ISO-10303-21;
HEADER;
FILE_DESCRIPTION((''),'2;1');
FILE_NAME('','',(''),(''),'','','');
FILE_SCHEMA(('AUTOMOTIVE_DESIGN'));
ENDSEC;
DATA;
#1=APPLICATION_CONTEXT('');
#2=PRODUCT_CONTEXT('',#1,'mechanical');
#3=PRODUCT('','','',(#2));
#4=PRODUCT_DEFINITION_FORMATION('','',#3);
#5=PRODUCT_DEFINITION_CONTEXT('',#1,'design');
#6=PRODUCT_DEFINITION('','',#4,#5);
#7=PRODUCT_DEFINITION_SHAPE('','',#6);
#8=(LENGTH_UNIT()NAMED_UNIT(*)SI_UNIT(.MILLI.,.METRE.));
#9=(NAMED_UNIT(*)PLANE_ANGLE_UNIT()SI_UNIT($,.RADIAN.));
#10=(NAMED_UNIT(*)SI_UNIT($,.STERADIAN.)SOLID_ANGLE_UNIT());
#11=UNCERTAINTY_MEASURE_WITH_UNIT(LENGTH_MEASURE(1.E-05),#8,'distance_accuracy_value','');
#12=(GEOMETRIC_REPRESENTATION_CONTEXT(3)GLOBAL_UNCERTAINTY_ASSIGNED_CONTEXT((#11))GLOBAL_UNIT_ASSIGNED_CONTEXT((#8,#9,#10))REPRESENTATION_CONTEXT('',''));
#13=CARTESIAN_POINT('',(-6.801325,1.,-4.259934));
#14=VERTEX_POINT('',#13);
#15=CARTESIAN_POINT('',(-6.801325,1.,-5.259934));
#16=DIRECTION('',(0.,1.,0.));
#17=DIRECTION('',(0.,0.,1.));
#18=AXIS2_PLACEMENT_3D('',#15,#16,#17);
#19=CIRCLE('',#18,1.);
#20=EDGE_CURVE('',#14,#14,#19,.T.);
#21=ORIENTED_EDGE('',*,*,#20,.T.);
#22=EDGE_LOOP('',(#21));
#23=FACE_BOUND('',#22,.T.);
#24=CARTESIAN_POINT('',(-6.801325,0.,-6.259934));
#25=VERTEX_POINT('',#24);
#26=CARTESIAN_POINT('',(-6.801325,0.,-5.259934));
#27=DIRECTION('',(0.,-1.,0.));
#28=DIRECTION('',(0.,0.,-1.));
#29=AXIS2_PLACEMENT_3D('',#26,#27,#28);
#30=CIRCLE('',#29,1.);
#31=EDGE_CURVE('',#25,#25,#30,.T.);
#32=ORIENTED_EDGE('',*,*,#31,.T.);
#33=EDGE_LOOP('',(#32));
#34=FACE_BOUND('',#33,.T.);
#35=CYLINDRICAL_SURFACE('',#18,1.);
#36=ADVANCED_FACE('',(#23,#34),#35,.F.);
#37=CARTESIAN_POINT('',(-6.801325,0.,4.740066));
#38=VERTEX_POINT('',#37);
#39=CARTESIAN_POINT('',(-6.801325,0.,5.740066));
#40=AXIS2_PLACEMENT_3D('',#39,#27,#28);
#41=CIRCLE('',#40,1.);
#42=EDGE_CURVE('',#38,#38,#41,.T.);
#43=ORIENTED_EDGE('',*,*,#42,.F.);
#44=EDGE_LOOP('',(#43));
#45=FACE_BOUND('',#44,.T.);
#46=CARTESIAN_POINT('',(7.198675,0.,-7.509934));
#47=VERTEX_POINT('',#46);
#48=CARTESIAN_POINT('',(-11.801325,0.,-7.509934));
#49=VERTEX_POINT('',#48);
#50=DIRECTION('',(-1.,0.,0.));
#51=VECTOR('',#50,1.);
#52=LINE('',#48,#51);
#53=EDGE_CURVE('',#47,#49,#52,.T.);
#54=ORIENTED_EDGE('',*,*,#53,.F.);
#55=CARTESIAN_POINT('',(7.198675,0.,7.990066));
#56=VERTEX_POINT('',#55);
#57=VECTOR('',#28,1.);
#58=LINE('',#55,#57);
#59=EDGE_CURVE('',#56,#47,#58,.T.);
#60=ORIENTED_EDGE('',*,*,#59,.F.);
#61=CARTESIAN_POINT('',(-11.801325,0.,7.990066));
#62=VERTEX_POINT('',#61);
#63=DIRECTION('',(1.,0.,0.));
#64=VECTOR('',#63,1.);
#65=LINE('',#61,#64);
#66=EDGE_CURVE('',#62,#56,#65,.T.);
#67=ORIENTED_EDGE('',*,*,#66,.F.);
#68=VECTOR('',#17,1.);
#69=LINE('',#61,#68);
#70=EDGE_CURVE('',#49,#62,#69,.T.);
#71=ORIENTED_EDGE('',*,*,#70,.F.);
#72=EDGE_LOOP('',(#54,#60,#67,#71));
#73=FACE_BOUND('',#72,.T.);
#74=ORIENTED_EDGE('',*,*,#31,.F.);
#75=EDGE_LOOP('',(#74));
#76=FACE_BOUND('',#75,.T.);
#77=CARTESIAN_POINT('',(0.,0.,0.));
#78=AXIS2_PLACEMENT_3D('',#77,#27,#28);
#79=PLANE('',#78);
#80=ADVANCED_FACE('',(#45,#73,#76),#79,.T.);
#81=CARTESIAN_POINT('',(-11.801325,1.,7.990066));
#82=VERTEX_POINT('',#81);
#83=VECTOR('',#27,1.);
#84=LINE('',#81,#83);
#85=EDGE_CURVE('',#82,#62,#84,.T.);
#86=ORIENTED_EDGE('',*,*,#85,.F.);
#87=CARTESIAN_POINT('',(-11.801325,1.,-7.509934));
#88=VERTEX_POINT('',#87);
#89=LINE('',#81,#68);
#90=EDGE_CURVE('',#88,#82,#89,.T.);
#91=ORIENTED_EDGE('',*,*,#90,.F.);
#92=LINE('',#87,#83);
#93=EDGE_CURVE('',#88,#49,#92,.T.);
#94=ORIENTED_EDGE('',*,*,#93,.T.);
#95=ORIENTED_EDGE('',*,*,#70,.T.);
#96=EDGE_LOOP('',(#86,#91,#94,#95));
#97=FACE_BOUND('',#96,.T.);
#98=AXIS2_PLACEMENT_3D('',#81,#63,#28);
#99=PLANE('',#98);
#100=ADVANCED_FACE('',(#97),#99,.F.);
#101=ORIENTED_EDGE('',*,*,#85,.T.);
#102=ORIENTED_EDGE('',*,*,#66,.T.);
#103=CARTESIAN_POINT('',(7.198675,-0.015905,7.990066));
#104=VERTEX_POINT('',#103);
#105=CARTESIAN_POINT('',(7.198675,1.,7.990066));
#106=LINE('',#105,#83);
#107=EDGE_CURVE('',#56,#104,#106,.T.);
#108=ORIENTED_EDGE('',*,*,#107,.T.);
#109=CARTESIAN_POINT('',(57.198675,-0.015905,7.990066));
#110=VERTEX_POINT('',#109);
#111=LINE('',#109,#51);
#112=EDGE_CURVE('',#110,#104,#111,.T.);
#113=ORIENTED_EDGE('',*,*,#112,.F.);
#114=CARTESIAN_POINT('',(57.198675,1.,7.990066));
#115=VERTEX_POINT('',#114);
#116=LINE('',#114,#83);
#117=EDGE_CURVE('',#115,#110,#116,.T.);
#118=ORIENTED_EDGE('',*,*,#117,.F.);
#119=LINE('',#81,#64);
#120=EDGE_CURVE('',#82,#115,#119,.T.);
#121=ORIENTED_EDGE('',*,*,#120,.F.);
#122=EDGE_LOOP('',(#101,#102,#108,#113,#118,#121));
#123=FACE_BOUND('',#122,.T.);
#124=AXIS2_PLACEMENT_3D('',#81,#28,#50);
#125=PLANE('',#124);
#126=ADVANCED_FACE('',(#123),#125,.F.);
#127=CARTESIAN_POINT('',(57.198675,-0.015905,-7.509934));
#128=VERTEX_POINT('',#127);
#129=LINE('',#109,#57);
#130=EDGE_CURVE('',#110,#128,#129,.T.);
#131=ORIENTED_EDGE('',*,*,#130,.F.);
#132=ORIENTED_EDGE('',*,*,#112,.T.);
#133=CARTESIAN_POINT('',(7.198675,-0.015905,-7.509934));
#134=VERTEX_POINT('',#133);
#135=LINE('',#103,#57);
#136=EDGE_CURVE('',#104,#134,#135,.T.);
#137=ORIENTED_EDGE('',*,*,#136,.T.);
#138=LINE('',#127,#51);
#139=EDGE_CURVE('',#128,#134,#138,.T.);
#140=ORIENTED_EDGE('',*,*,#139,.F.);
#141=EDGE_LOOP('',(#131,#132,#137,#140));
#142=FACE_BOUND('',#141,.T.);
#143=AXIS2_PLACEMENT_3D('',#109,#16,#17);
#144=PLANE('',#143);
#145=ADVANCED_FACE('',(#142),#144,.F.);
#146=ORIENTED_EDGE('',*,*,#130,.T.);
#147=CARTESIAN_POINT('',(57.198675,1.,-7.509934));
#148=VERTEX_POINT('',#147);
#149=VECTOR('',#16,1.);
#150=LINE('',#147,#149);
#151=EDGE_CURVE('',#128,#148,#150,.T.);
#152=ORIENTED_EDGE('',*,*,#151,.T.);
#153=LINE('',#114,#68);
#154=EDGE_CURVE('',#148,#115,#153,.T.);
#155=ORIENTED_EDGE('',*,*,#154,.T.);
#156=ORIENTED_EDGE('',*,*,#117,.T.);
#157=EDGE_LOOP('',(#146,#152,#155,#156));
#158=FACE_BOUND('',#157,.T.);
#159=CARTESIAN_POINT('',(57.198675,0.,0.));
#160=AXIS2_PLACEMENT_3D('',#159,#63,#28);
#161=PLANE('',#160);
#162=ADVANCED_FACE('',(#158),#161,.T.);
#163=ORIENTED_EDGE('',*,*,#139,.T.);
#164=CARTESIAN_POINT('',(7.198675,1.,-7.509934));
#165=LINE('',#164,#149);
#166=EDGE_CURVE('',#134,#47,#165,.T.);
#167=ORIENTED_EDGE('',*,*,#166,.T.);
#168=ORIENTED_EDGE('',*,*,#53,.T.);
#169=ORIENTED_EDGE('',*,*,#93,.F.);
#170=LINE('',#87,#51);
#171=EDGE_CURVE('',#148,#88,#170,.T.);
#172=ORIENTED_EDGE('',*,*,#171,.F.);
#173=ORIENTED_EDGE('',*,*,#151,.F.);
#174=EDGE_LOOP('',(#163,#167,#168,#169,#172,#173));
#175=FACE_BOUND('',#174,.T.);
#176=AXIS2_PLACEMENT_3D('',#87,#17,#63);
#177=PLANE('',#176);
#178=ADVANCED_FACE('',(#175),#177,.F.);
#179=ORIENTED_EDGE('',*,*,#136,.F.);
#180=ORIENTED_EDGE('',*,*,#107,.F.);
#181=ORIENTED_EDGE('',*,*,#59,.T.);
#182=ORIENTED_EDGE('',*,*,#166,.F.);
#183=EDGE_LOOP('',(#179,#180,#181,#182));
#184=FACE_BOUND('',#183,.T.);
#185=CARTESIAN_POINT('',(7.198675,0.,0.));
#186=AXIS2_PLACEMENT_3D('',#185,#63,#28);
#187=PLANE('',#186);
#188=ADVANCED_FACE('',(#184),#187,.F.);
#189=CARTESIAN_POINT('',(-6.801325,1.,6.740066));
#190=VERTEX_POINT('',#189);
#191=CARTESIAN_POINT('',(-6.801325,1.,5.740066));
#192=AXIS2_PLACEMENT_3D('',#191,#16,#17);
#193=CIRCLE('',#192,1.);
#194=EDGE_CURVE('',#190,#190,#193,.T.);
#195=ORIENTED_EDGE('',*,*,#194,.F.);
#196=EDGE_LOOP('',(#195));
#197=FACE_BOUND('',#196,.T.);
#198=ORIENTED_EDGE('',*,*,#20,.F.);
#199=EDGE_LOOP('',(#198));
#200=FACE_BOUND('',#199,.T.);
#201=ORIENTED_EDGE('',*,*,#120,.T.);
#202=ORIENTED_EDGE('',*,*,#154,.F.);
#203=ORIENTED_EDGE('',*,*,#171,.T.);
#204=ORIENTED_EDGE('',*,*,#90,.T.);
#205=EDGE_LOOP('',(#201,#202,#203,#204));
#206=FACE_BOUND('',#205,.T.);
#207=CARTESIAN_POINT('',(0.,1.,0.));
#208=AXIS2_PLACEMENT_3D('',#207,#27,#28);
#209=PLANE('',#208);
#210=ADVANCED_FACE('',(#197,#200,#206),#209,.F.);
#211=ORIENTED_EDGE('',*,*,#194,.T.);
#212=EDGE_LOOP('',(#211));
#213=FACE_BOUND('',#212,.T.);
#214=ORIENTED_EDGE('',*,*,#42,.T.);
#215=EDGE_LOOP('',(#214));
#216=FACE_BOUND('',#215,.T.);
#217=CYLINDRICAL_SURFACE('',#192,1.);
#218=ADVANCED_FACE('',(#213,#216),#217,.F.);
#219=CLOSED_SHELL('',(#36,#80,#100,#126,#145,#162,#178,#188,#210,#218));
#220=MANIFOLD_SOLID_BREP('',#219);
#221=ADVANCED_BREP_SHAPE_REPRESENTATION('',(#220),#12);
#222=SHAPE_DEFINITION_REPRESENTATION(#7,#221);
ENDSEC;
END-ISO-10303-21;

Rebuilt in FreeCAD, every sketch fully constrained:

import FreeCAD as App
import Part
import Sketcher

V = App.Vector

doc = App.newDocument("Part")
body = doc.addObject("PartDesign::Body", "Body")

sketch1 = doc.addObject("Sketcher::SketchObject", "Sketch")
body.addObject(sketch1)
sketch1.AttachmentSupport = (doc.XZ_Plane, [""])
sketch1.MapMode = "FlatFace"
sketch1.addGeometry(Part.LineSegment(V(-11.801325, -7.509934, 0), V(-11.801325, 7.990066, 0)), False)
sketch1.addGeometry(Part.LineSegment(V(-11.801325, 7.990066, 0), V(7.198675, 7.990066, 0)), False)
sketch1.addGeometry(Part.LineSegment(V(7.198675, 7.990066, 0), V(7.198675, -7.509934, 0)), False)
sketch1.addGeometry(Part.LineSegment(V(7.198675, -7.509934, 0), V(-11.801325, -7.509934, 0)), False)
sketch1.addConstraint(Sketcher.Constraint("Coincident", 0, 2, 1, 1))
sketch1.addConstraint(Sketcher.Constraint("Coincident", 1, 2, 2, 1))
sketch1.addConstraint(Sketcher.Constraint("Coincident", 2, 2, 3, 1))
sketch1.addConstraint(Sketcher.Constraint("Coincident", 3, 2, 0, 1))
sketch1.addConstraint(Sketcher.Constraint("Vertical", 0))
sketch1.addConstraint(Sketcher.Constraint("Horizontal", 1))
sketch1.addConstraint(Sketcher.Constraint("Vertical", 2))
sketch1.addConstraint(Sketcher.Constraint("Horizontal", 3))
sketch1.addConstraint(Sketcher.Constraint("DistanceX", 1, 1, 1, 2, 19.0))
sketch1.addConstraint(Sketcher.Constraint("DistanceY", 0, 1, 0, 2, 15.5))
sketch1.addConstraint(Sketcher.Constraint("DistanceX", 0, 2, -1, 1, 11.801325))
sketch1.addConstraint(Sketcher.Constraint("DistanceY", -1, 1, 0, 2, 7.990066))
pad1 = doc.addObject("PartDesign::Pad", "Pad")
body.addObject(pad1)
pad1.Profile = sketch1
pad1.Length = 1
pad1.Reversed = True

sketch2 = doc.addObject("Sketcher::SketchObject", "Sketch001")
body.addObject(sketch2)
sketch2.AttachmentSupport = (doc.XZ_Plane, [""])
sketch2.MapMode = "FlatFace"
sketch2.AttachmentOffset = App.Placement(V(0, 0, -1), App.Rotation())
sketch2.addGeometry(Part.Circle(V(-6.801325, -5.259934, 0), V(0, 0, 1), 1), False)
sketch2.addGeometry(Part.Circle(V(-6.801325, 5.740066, 0), V(0, 0, 1), 1), False)
sketch2.addConstraint(Sketcher.Constraint("Equal", 0, 1))
sketch2.addConstraint(Sketcher.Constraint("Vertical", 0, 3, 1, 3))
sketch2.addConstraint(Sketcher.Constraint("Diameter", 0, 2.0))
sketch2.addConstraint(Sketcher.Constraint("DistanceY", 0, 3, 1, 3, 11.0))
sketch2.addConstraint(Sketcher.Constraint("DistanceX", 0, 3, -1, 1, 6.801325))
sketch2.addConstraint(Sketcher.Constraint("DistanceY", 0, 3, -1, 1, 5.259934))
doc.recompute()
hole = doc.addObject("PartDesign::Hole", "Hole")
body.addObject(hole)
hole.Profile = sketch2
hole.ThreadType = "None"
hole.Diameter = 2
hole.DepthType = "Dimension"
hole.Depth = 25
hole.DrillPoint = "Angled"
hole.DrillPointAngle = 118
hole.Reversed = True

sketch3 = doc.addObject("Sketcher::SketchObject", "Sketch002")
body.addObject(sketch3)
sketch3.AttachmentSupport = (doc.YZ_Plane, [""])
sketch3.MapMode = "FlatFace"
sketch3.AttachmentOffset = App.Placement(V(0, 0, 7.198675), App.Rotation())
sketch3.addGeometry(Part.LineSegment(V(1, 7.990066, 0), V(-0.015905, 7.990066, 0)), False)
sketch3.addGeometry(Part.LineSegment(V(-0.015905, 7.990066, 0), V(-0.015905, -7.509934, 0)), False)
sketch3.addGeometry(Part.LineSegment(V(-0.015905, -7.509934, 0), V(1, -7.509934, 0)), False)
sketch3.addGeometry(Part.LineSegment(V(1, -7.509934, 0), V(1, 7.990066, 0)), False)
sketch3.addConstraint(Sketcher.Constraint("Coincident", 0, 2, 1, 1))
sketch3.addConstraint(Sketcher.Constraint("Coincident", 1, 2, 2, 1))
sketch3.addConstraint(Sketcher.Constraint("Coincident", 2, 2, 3, 1))
sketch3.addConstraint(Sketcher.Constraint("Coincident", 3, 2, 0, 1))
sketch3.addConstraint(Sketcher.Constraint("Horizontal", 0))
sketch3.addConstraint(Sketcher.Constraint("Vertical", 1))
sketch3.addConstraint(Sketcher.Constraint("Horizontal", 2))
sketch3.addConstraint(Sketcher.Constraint("Vertical", 3))
sketch3.addConstraint(Sketcher.Constraint("DistanceY", 1, 2, 1, 1, 15.5))
sketch3.addConstraint(Sketcher.Constraint("DistanceX", -1, 1, 2, 2, 1.0))
sketch3.addConstraint(Sketcher.Constraint("DistanceX", 0, 2, 0, 1, 1.015905))
sketch3.addConstraint(Sketcher.Constraint("DistanceY", -1, 1, 0, 2, 7.990066))
pad2 = doc.addObject("PartDesign::Pad", "Pad001")
body.addObject(pad2)
pad2.Profile = sketch3
pad2.Length = 50

doc.recompute()
